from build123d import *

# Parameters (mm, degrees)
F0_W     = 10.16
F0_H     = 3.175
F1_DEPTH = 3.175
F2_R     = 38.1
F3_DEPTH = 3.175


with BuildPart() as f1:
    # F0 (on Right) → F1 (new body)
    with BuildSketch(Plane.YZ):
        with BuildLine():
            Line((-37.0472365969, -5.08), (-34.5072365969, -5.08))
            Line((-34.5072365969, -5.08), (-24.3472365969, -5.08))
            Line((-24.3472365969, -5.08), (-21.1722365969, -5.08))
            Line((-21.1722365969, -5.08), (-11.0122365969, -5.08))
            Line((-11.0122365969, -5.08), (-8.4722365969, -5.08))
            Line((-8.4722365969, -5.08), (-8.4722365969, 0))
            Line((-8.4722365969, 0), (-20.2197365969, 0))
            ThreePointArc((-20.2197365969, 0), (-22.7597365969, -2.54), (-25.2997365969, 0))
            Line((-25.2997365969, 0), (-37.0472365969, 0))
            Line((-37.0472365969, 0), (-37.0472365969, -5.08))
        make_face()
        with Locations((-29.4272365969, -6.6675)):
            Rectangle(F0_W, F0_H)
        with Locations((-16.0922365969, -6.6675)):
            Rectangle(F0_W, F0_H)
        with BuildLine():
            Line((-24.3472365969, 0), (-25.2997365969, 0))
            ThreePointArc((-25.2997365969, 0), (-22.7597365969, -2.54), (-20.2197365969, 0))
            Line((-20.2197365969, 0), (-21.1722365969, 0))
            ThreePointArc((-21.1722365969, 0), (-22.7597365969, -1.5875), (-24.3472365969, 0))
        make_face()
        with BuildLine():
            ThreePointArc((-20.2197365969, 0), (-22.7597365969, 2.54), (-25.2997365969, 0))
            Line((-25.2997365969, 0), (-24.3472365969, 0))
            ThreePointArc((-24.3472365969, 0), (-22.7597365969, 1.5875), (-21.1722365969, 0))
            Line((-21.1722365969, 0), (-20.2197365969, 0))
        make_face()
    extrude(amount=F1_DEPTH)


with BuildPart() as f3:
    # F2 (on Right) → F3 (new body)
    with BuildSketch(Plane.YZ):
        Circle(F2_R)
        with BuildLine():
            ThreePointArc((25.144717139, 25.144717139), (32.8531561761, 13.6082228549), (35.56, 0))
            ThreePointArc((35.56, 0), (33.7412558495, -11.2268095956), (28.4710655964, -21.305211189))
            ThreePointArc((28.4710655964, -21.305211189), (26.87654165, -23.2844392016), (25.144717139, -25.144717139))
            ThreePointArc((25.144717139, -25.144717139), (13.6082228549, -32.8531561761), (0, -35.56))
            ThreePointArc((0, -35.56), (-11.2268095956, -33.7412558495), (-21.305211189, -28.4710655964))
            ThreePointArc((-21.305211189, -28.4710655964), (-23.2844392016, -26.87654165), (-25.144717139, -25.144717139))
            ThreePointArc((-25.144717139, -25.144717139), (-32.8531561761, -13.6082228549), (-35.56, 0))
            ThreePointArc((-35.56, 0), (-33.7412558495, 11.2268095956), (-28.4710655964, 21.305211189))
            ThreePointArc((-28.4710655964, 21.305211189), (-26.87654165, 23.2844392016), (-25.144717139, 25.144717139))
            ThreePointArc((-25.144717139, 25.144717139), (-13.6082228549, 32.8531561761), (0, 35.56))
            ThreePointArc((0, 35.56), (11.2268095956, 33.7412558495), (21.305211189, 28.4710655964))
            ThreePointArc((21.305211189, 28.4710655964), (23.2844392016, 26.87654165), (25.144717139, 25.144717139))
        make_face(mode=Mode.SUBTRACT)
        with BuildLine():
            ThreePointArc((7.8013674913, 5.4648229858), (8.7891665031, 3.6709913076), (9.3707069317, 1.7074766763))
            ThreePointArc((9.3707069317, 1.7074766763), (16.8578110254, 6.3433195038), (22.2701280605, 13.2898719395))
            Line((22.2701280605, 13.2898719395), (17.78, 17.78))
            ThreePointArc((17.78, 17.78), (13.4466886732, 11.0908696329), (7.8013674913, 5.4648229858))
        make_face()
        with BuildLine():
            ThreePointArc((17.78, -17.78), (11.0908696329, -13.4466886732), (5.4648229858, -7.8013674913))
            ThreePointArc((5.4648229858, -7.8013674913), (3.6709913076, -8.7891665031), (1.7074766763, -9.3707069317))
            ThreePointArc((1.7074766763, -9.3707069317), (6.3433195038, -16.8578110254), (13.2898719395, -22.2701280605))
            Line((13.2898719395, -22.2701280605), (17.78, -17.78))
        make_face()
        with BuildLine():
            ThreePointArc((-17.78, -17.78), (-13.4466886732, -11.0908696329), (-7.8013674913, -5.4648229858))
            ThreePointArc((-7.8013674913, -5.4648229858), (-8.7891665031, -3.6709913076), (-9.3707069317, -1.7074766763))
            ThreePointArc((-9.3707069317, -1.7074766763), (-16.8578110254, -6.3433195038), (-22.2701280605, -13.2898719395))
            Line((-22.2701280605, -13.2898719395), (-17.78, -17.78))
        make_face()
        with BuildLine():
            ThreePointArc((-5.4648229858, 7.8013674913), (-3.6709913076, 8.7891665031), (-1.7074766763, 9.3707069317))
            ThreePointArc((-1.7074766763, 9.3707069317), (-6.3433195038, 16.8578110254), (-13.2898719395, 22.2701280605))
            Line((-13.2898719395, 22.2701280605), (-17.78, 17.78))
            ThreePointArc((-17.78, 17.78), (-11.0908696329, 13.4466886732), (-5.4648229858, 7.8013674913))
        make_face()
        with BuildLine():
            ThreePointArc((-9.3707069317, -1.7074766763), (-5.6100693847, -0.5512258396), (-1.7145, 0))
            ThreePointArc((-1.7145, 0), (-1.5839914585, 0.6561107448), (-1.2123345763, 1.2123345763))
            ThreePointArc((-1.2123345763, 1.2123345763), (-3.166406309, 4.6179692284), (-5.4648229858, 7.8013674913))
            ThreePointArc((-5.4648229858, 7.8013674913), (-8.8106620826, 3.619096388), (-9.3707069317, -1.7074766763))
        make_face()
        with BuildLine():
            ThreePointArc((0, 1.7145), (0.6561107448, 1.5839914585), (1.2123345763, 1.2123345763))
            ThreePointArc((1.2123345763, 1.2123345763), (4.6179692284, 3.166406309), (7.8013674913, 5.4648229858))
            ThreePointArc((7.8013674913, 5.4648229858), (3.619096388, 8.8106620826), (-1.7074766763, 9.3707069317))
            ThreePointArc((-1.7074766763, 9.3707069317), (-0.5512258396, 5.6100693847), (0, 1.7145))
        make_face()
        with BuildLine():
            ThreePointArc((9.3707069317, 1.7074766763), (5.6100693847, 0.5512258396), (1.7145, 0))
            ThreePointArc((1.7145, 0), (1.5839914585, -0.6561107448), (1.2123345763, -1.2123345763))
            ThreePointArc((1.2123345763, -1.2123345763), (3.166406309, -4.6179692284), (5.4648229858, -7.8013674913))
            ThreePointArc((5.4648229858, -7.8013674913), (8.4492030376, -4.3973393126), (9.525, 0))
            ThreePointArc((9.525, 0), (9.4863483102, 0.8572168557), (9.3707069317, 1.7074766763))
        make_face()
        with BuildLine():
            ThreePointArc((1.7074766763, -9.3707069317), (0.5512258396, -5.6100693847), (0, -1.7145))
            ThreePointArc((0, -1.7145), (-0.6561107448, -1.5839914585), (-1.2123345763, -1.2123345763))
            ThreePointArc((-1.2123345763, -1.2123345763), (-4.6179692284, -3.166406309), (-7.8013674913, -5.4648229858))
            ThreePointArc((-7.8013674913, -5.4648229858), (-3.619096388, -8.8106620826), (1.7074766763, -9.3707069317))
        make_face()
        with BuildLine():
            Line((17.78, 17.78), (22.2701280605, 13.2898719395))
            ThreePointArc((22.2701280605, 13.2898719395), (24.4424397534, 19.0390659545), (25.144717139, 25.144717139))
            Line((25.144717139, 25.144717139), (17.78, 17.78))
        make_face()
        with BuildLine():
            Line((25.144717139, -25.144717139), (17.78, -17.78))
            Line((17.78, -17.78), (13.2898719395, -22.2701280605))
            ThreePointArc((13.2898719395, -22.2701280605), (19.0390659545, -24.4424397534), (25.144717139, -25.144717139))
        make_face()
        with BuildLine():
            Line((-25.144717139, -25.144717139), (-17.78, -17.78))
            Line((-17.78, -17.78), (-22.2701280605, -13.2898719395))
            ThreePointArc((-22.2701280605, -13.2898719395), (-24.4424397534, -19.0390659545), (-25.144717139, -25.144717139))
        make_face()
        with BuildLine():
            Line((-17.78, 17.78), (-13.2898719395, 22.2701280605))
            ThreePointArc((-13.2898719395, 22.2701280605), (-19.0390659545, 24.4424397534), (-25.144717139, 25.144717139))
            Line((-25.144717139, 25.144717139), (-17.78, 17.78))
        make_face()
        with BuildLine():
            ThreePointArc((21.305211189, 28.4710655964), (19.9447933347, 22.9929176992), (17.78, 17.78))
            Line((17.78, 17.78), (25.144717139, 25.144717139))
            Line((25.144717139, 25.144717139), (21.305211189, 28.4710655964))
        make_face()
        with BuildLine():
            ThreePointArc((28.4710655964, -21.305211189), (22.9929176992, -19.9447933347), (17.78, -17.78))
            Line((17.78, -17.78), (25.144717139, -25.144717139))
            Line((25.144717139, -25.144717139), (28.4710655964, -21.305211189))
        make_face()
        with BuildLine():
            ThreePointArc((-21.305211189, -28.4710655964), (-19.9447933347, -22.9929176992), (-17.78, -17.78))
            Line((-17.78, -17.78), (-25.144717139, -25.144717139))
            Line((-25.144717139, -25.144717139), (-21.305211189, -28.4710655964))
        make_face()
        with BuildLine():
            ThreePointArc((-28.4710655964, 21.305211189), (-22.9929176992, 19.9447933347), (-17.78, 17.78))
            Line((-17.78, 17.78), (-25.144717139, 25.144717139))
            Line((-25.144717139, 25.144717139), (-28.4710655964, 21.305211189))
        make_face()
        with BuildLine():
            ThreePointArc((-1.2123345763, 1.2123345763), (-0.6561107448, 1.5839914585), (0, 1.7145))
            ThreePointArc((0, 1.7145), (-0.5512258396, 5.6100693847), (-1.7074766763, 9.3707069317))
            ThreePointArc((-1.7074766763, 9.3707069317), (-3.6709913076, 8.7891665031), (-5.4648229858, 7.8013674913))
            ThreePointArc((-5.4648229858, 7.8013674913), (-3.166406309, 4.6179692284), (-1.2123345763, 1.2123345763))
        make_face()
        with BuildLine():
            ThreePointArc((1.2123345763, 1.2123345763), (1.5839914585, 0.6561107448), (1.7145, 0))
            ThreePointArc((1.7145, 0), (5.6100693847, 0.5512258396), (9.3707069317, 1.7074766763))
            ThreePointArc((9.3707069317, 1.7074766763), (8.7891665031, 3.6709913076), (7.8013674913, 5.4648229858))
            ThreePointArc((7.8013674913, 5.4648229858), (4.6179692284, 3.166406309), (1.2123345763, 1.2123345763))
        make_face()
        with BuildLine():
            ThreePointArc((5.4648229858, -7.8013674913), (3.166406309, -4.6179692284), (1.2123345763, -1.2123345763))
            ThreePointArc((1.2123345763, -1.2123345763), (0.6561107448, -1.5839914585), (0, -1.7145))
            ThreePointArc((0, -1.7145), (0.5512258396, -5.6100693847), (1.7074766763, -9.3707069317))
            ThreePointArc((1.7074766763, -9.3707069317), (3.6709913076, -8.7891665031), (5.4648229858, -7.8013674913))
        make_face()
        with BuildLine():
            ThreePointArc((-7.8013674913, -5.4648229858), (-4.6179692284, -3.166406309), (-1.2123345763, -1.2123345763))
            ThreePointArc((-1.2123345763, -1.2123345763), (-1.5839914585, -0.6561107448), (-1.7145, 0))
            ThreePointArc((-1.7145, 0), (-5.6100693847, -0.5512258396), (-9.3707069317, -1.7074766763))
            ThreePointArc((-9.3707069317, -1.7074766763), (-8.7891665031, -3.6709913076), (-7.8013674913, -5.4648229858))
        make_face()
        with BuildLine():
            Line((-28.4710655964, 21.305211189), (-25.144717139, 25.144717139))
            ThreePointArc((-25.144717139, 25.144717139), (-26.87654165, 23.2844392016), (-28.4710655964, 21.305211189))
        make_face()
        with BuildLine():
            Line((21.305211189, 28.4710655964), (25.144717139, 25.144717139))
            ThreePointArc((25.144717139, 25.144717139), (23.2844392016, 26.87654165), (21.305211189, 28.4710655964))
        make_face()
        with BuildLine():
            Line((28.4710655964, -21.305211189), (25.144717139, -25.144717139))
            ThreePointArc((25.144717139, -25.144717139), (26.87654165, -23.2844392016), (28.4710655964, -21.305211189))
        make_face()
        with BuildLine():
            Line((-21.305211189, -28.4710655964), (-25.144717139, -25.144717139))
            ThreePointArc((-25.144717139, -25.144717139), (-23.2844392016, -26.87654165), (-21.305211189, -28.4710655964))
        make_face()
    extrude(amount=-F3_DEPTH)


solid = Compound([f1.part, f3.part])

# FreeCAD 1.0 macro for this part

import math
import FreeCAD as App
import Part
import Sketcher

V = App.Vector
Q = App.Units.Quantity

doc = App.newDocument("Part")
body = doc.addObject("PartDesign::Body", "Body")

# Sketch on YZ plane
sketch1 = body.newObject("Sketcher::SketchObject", "Sketch")
sketch1.AttachmentSupport = (doc.getObject("YZ_Plane"), [""])
sketch1.MapMode = "FlatFace"
sketch1.addGeometry([
    Part.LineSegment(V(-37, -5.1, 0), V(-34.5, -5.1, 0)),  # 0
    Part.LineSegment(V(-34.5, -5.1, 0), V(-34.5, -8.3, 0)),  # 1
    Part.LineSegment(V(-34.5, -8.3, 0), V(-24.3, -8.3, 0)),  # 2
    Part.LineSegment(V(-24.3, -8.3, 0), V(-24.3, -5.1, 0)),  # 3
    Part.LineSegment(V(-24.3, -5.1, 0), V(-21.2, -5.1, 0)),  # 4
    Part.LineSegment(V(-21.2, -5.1, 0), V(-21.2, -8.3, 0)),  # 5
    Part.LineSegment(V(-21.2, -8.3, 0), V(-11, -8.3, 0)),  # 6
    Part.LineSegment(V(-11, -8.3, 0), V(-11, -5.1, 0)),  # 7
    Part.LineSegment(V(-11, -5.1, 0), V(-8.5, -5.1, 0)),  # 8
    Part.LineSegment(V(-8.5, -5.1, 0), V(-8.5, 0, 0)),  # 9
    Part.LineSegment(V(-8.5, 0, 0), V(-20.2, 0, 0)),  # 10
    Part.ArcOfCircle(Part.Circle(V(-22.8, 0, 0), V(0, 0, 1), 2.5), math.radians(0), math.radians(180)),  # 11
    Part.LineSegment(V(-25.3, 0, 0), V(-37, 0, 0)),  # 12
    Part.LineSegment(V(-37, 0, 0), V(-37, -5.1, 0)),  # 13
    Part.Circle(V(-22.8, 0, 0), V(0, 0, 1), 1.6),  # 14
], False)
sketch1.addConstraint([
    Sketcher.Constraint("Coincident", 0, 2, 1, 1),
    Sketcher.Constraint("Coincident", 1, 2, 2, 1),
    Sketcher.Constraint("Coincident", 2, 2, 3, 1),
    Sketcher.Constraint("Coincident", 3, 2, 4, 1),
    Sketcher.Constraint("Coincident", 4, 2, 5, 1),
    Sketcher.Constraint("Coincident", 5, 2, 6, 1),
    Sketcher.Constraint("Coincident", 6, 2, 7, 1),
    Sketcher.Constraint("Coincident", 7, 2, 8, 1),
    Sketcher.Constraint("Coincident", 8, 2, 9, 1),
    Sketcher.Constraint("Coincident", 9, 2, 10, 1),
    Sketcher.Constraint("Coincident", 10, 2, 11, 1),
    Sketcher.Constraint("Coincident", 11, 2, 12, 1),
    Sketcher.Constraint("Coincident", 12, 2, 13, 1),
    Sketcher.Constraint("Coincident", 13, 2, 0, 1),
    Sketcher.Constraint("Horizontal", 0),
    Sketcher.Constraint("Vertical", 1),
    Sketcher.Constraint("Horizontal", 2),
    Sketcher.Constraint("Vertical", 3),
    Sketcher.Constraint("Horizontal", 4),
    Sketcher.Constraint("Vertical", 5),
    Sketcher.Constraint("Horizontal", 6),
    Sketcher.Constraint("Vertical", 7),
    Sketcher.Constraint("Horizontal", 8),
    Sketcher.Constraint("Vertical", 9),
    Sketcher.Constraint("Horizontal", 10),
    Sketcher.Constraint("Horizontal", 12),
    Sketcher.Constraint("Vertical", 13),
    Sketcher.Constraint("Coincident", 14, 3, 11, 3),
    Sketcher.Constraint("PointOnObject", 11, 3, -1),
    Sketcher.Constraint("PointOnObject", 9, 2, -1),
    Sketcher.Constraint("PointOnObject", 11, 2, -1),
    Sketcher.Constraint("Horizontal", 0, 2, 3, 2),
    Sketcher.Constraint("Horizontal", 2, 2, 5, 2),
    Sketcher.Constraint("Horizontal", 4, 2, 7, 2),
    Sketcher.Constraint("Equal", 2, 6),
    Sketcher.Constraint("Equal", 0, 8),
    Sketcher.Constraint("Equal", 10, 12),
    Sketcher.Constraint("Equal", 4, 1),
    Sketcher.Constraint("Radius", 11, Q("0.1 in")),
    Sketcher.Constraint("Diameter", 14, Q("0.125 in")),
    Sketcher.Constraint("DistanceX", 0, 1, 0, 2, Q("0.1 in")),
    Sketcher.Constraint("DistanceX", 2, 1, 2, 2, Q("0.4 in")),
    Sketcher.Constraint("DistanceY", 9, 1, 9, 2, Q("0.2 in")),
    Sketcher.Constraint("DistanceX", 4, 1, 4, 2, Q("0.125 in")),
    Sketcher.Constraint("DistanceX", 11, 3, -1, 1, 22.759737),
])
pad1 = body.newObject("PartDesign::Pad", "Pad")
pad1.Profile = sketch1
pad1.Length = Q("0.125 in")
body2 = doc.addObject("PartDesign::Body", "Body001")

# Sketch on YZ plane
sketch2 = body2.newObject("Sketcher::SketchObject", "Sketch001")
sketch2.AttachmentSupport = (doc.getObject("YZ_Plane001"), [""])
sketch2.MapMode = "FlatFace"
sketch2.addGeometry([
    Part.Circle(V(0, 0, 0), V(0, 0, 1), 38.1),  # 0
    Part.ArcOfCircle(Part.Circle(V(-0.2, -24.9, 0), V(0, 0, 1), 25), math.radians(152), math.radians(181)),  # 1
    Part.ArcOfCircle(Part.Circle(V(0, 0, 0), V(0, 0, 1), 35.6), math.radians(180), math.radians(225)),  # 2
    Part.ArcOfCircle(Part.Circle(V(0, 0, 0), V(0, 0, 1), 35.6), math.radians(143), math.radians(180)),  # 3
    Part.ArcOfCircle(Part.Circle(V(-34.8, -15.8, 0), V(0, 0, 1), 37.6), math.radians(63.15), math.radians(80.36)),  # 4
    Part.ArcOfCircle(Part.Circle(V(-34.8, -15.8, 0), V(0, 0, 1), 37.6), math.radians(39), math.radians(63)),  # 5
    Part.ArcOfCircle(Part.Circle(V(0, 0, 0), V(0, 0, 1), 9.5), math.radians(125), math.radians(190)),  # 6
    Part.ArcOfCircle(Part.Circle(V(-0.2, -24.9, 0), V(0, 0, 1), 25), math.radians(112), math.radians(152)),  # 7
    Part.ArcOfCircle(Part.Circle(V(0, 0, 0), V(0, 0, 1), 35.6), math.radians(-127), math.radians(-90)),  # 8
    Part.ArcOfCircle(Part.Circle(V(15.8, -34.8, 0), V(0, 0, 1), 37.6), math.radians(153.15), math.radians(170.36)),  # 9
    Part.ArcOfCircle(Part.Circle(V(15.8, -34.8, 0), V(0, 0, 1), 37.6), math.radians(129), math.radians(153)),  # 10
    Part.ArcOfCircle(Part.Circle(V(0, 0, 0), V(0, 0, 1), 9.5), math.radians(-145), math.radians(-80)),  # 11
    Part.ArcOfCircle(Part.Circle(V(24.9, -0.2, 0), V(0, 0, 1), 25), math.radians(-158), math.radians(-118)),  # 12
    Part.ArcOfCircle(Part.Circle(V(24.9, -0.2, 0), V(0, 0, 1), 25), math.radians(-118), math.radians(-89)),  # 13
    Part.ArcOfCircle(Part.Circle(V(0, 0, 0), V(0, 0, 1), 35.6), math.radians(-90), math.radians(-45)),  # 14
    Part.ArcOfCircle(Part.Circle(V(0, 0, 0), V(0, 0, 1), 35.6), math.radians(53), math.radians(90)),  # 15
    Part.ArcOfCircle(Part.Circle(V(-15.8, 34.8, 0), V(0, 0, 1), 37.6), math.radians(-26.85), math.radians(-9.64)),  # 16
    Part.ArcOfCircle(Part.Circle(V(-15.8, 34.8, 0), V(0, 0, 1), 37.6), math.radians(-51), math.radians(-27)),  # 17
    Part.ArcOfCircle(Part.Circle(V(0, 0, 0), V(0, 0, 1), 9.5), math.radians(35), math.radians(100)),  # 18
    Part.ArcOfCircle(Part.Circle(V(-24.9, 0.2, 0), V(0, 0, 1), 25), math.radians(22), math.radians(62)),  # 19
    Part.ArcOfCircle(Part.Circle(V(-24.9, 0.2, 0), V(0, 0, 1), 25), math.radians(62), math.radians(91)),  # 20
    Part.ArcOfCircle(Part.Circle(V(0, 0, 0), V(0, 0, 1), 35.6), math.radians(90), math.radians(135)),  # 21
    Part.ArcOfCircle(Part.Circle(V(0, 0, 0), V(0, 0, 1), 1.7), math.radians(180), math.radians(225)),  # 22
    Part.ArcOfCircle(Part.Circle(V(0, 0, 0), V(0, 0, 1), 1.7), math.radians(135), math.radians(180)),  # 23
    Part.ArcOfCircle(Part.Circle(V(0, 0, 0), V(0, 0, 1), 1.7), math.radians(90), math.radians(135)),  # 24
    Part.ArcOfCircle(Part.Circle(V(0, 0, 0), V(0, 0, 1), 1.7), math.radians(45), math.radians(90)),  # 25
    Part.ArcOfCircle(Part.Circle(V(0, 0, 0), V(0, 0, 1), 1.7), math.radians(0), math.radians(45)),  # 26
    Part.ArcOfCircle(Part.Circle(V(0, 0, 0), V(0, 0, 1), 1.7), math.radians(-45), math.radians(0)),  # 27
    Part.ArcOfCircle(Part.Circle(V(0, 0, 0), V(0, 0, 1), 1.7), math.radians(-90), math.radians(-45)),  # 28
    Part.ArcOfCircle(Part.Circle(V(0, 0, 0), V(0, 0, 1), 1.7), math.radians(-135), math.radians(-90)),  # 29
    Part.ArcOfCircle(Part.Circle(V(0, 0, 0), V(0, 0, 1), 35.6), math.radians(-37), math.radians(0)),  # 30
    Part.ArcOfCircle(Part.Circle(V(34.8, 15.8, 0), V(0, 0, 1), 37.6), math.radians(-116.85), math.radians(-99.64)),  # 31
    Part.ArcOfCircle(Part.Circle(V(34.8, 15.8, 0), V(0, 0, 1), 37.6), math.radians(-141), math.radians(-117)),  # 32
    Part.ArcOfCircle(Part.Circle(V(0, 0, 0), V(0, 0, 1), 9.5), math.radians(-55), math.radians(0)),  # 33
    Part.ArcOfCircle(Part.Circle(V(0, 0, 0), V(0, 0, 1), 9.5), math.radians(0), math.radians(10.33)),  # 34
    Part.ArcOfCircle(Part.Circle(V(0.2, 24.9, 0), V(0, 0, 1), 25), math.radians(-68), math.radians(-28)),  # 35
    Part.ArcOfCircle(Part.Circle(V(0.2, 24.9, 0), V(0, 0, 1), 25), math.radians(-28), math.radians(1)),  # 36
    Part.ArcOfCircle(Part.Circle(V(0, 0, 0), V(0, 0, 1), 35.6), math.radians(0), math.radians(45)),  # 37
], False)
sketch2.addConstraint([
    Sketcher.Constraint("Coincident", 1, 2, 2, 2),
    Sketcher.Constraint("Tangent", 2, 1, 3, 2),
    Sketcher.Constraint("Coincident", 3, 1, 4, 2),
    Sketcher.Constraint("Tangent", 4, 1, 5, 2),
    Sketcher.Constraint("Coincident", 5, 1, 6, 1),
    Sketcher.Constraint("Coincident", 6, 2, 7, 1),
    Sketcher.Constraint("Tangent", 7, 2, 1, 1),
    Sketcher.Constraint("Coincident", 8, 1, 9, 2),
    Sketcher.Constraint("Tangent", 9, 1, 10, 2),
    Sketcher.Constraint("Coincident", 10, 1, 11, 1),
    Sketcher.Constraint("Coincident", 11, 2, 12, 1),
    Sketcher.Constraint("Tangent", 12, 2, 13, 1),
    Sketcher.Constraint("Coincident", 13, 2, 14, 2),
    Sketcher.Constraint("Tangent", 14, 1, 8, 2),
    Sketcher.Constraint("Coincident", 15, 1, 16, 2),
    Sketcher.Constraint("Tangent", 16, 1, 17, 2),
    Sketcher.Constraint("Coincident", 17, 1, 18, 1),
    Sketcher.Constraint("Coincident", 18, 2, 19, 1),
    Sketcher.Constraint("Tangent", 19, 2, 20, 1),
    Sketcher.Constraint("Coincident", 20, 2, 21, 2),
    Sketcher.Constraint("Tangent", 21, 1, 15, 2),
    Sketcher.Constraint("Tangent", 22, 1, 23, 2),
    Sketcher.Constraint("Tangent", 23, 1, 24, 2),
    Sketcher.Constraint("Tangent", 24, 1, 25, 2),
    Sketcher.Constraint("Tangent", 25, 1, 26, 2),
    Sketcher.Constraint("Tangent", 26, 1, 27, 2),
    Sketcher.Constraint("Tangent", 27, 1, 28, 2),
    Sketcher.Constraint("Tangent", 28, 1, 29, 2),
    Sketcher.Constraint("Tangent", 29, 1, 22, 2),
    Sketcher.Constraint("Coincident", 30, 1, 31, 2),
    Sketcher.Constraint("Tangent", 31, 1, 32, 2),
    Sketcher.Constraint("Coincident", 32, 1, 33, 1),
    Sketcher.Constraint("Tangent", 33, 2, 34, 1),
    Sketcher.Constraint("Coincident", 34, 2, 35, 1),
    Sketcher.Constraint("Tangent", 35, 2, 36, 1),
    Sketcher.Constraint("Coincident", 36, 2, 37, 2),
    Sketcher.Constraint("Tangent", 37, 1, 30, 2),
    Sketcher.Constraint("Coincident", 0, 3, -1, 1),
    Sketcher.Constraint("Coincident", 2, 3, -1, 1),
    Sketcher.Constraint("Coincident", 6, 3, -1, 1),
    Sketcher.Constraint("Coincident", 8, 3, -1, 1),
    Sketcher.Constraint("Coincident", 11, 3, -1, 1),
    Sketcher.Constraint("Coincident", 15, 3, -1, 1),
    Sketcher.Constraint("Coincident", 18, 3, -1, 1),
    Sketcher.Constraint("Coincident", 22, 3, -1, 1),
    Sketcher.Constraint("Coincident", 24, 3, -1, 1),
    Sketcher.Constraint("Coincident", 26, 3, -1, 1),
    Sketcher.Constraint("Coincident", 30, 3, -1, 1),
    Sketcher.Constraint("Coincident", 33, 3, -1, 1),
    Sketcher.Constraint("Equal", 2, 3),
    Sketcher.Constraint("Equal", 4, 5),
    Sketcher.Constraint("Equal", 1, 7),
    Sketcher.Constraint("Equal", 3, 8),
    Sketcher.Constraint("Equal", 5, 9),
    Sketcher.Constraint("Equal", 9, 10),
    Sketcher.Constraint("Equal", 6, 11),
    Sketcher.Constraint("Equal", 7, 12),
    Sketcher.Constraint("Equal", 12, 13),
    Sketcher.Constraint("Equal", 8, 14),
    Sketcher.Constraint("Equal", 14, 15),
    Sketcher.Constraint("Equal", 10, 16),
    Sketcher.Constraint("Equal", 16, 17),
    Sketcher.Constraint("Equal", 11, 18),
    Sketcher.Constraint("Equal", 13, 19),
    Sketcher.Constraint("Equal", 19, 20),
    Sketcher.Constraint("Equal", 15, 21),
    Sketcher.Constraint("Equal", 26, 27),
    Sketcher.Constraint("Equal", 21, 30),
    Sketcher.Constraint("Equal", 17, 31),
    Sketcher.Constraint("Equal", 31, 32),
    Sketcher.Constraint("Equal", 18, 33),
    Sketcher.Constraint("Equal", 33, 34),
    Sketcher.Constraint("Equal", 20, 35),
    Sketcher.Constraint("Equal", 35, 36),
    Sketcher.Constraint("Equal", 30, 37),
    Sketcher.Constraint("Symmetric", 9, 3, 16, 3, -1, 1),
    Sketcher.Constraint("Symmetric", 12, 3, 19, 3, -1, 1),
    Sketcher.Constraint("Symmetric", 4, 3, 31, 3, -1, 1),
    Sketcher.Constraint("Symmetric", 1, 3, 35, 3, -1, 1),
    Sketcher.Constraint("Symmetric", 4, 1, 16, 1, -2),
    Sketcher.Constraint("Symmetric", 9, 1, 31, 1, -2),
    Sketcher.Constraint("PointOnObject", 2, 1, -1),
    Sketcher.Constraint("PointOnObject", 14, 1, -2),
    Sketcher.Constraint("PointOnObject", 21, 1, -2),
    Sketcher.Constraint("PointOnObject", 22, 1, -1),
    Sketcher.Constraint("PointOnObject", 24, 1, -2),
    Sketcher.Constraint("PointOnObject", 26, 1, -1),
    Sketcher.Constraint("PointOnObject", 28, 1, -2),
    Sketcher.Constraint("PointOnObject", 33, 2, -1),
    Sketcher.Constraint("PointOnObject", 37, 1, -1),
    Sketcher.Constraint("Horizontal", 1, 2, 13, 2),
    Sketcher.Constraint("Horizontal", 23, 1, 25, 1),
    Sketcher.Constraint("Horizontal", 27, 1, 29, 1),
    Sketcher.Constraint("Vertical", 25, 1, 27, 1),
    Sketcher.Constraint("Diameter", 0, Q("3 in")),
    Sketcher.Constraint("Radius", 2, Q("1.4 in")),
    Sketcher.Constraint("Radius", 6, Q("0.375 in")),
    Sketcher.Constraint("DistanceX", 4, 1, -1, 1, Q("0.7 in")),
    Sketcher.Constraint("DistanceY", -1, 1, 4, 1, Q("0.7 in")),
    Sketcher.Constraint("Radius", 22, Q("0.0675 in")),
    Sketcher.Constraint("Radius", 1, 24.971118),
    Sketcher.Constraint("Radius", 4, 37.617207),
    Sketcher.Constraint("DistanceX", 1, 3, -1, 1, 0.174578),
    Sketcher.Constraint("DistanceY", 1, 3, -1, 1, 24.923591),
    Sketcher.Constraint("DistanceX", -1, 1, 12, 3, 24.923591),
    Sketcher.Constraint("DistanceY", -1, 1, 3, 1, 21.305211),
    Sketcher.Constraint("DistanceX", 7, 2, -1, 1, 22.270128),
    Sketcher.Constraint("DistanceX", 8, 1, -1, 1, 21.305211),
    Sketcher.Constraint("DistanceX", -1, 1, 12, 2, 13.289872),
    Sketcher.Constraint("DistanceX", 19, 2, -1, 1, 13.289872),
    Sketcher.Constraint("DistanceX", -1, 1, 35, 2, 22.270128),
    Sketcher.Constraint("DistanceX", 23, 1, -1, 1, 1.212335),
])
pad2 = body2.newObject("PartDesign::Pad", "Pad001")
pad2.Profile = sketch2
pad2.Length = Q("0.125 in")
pad2.Reversed = True

doc.recompute()
